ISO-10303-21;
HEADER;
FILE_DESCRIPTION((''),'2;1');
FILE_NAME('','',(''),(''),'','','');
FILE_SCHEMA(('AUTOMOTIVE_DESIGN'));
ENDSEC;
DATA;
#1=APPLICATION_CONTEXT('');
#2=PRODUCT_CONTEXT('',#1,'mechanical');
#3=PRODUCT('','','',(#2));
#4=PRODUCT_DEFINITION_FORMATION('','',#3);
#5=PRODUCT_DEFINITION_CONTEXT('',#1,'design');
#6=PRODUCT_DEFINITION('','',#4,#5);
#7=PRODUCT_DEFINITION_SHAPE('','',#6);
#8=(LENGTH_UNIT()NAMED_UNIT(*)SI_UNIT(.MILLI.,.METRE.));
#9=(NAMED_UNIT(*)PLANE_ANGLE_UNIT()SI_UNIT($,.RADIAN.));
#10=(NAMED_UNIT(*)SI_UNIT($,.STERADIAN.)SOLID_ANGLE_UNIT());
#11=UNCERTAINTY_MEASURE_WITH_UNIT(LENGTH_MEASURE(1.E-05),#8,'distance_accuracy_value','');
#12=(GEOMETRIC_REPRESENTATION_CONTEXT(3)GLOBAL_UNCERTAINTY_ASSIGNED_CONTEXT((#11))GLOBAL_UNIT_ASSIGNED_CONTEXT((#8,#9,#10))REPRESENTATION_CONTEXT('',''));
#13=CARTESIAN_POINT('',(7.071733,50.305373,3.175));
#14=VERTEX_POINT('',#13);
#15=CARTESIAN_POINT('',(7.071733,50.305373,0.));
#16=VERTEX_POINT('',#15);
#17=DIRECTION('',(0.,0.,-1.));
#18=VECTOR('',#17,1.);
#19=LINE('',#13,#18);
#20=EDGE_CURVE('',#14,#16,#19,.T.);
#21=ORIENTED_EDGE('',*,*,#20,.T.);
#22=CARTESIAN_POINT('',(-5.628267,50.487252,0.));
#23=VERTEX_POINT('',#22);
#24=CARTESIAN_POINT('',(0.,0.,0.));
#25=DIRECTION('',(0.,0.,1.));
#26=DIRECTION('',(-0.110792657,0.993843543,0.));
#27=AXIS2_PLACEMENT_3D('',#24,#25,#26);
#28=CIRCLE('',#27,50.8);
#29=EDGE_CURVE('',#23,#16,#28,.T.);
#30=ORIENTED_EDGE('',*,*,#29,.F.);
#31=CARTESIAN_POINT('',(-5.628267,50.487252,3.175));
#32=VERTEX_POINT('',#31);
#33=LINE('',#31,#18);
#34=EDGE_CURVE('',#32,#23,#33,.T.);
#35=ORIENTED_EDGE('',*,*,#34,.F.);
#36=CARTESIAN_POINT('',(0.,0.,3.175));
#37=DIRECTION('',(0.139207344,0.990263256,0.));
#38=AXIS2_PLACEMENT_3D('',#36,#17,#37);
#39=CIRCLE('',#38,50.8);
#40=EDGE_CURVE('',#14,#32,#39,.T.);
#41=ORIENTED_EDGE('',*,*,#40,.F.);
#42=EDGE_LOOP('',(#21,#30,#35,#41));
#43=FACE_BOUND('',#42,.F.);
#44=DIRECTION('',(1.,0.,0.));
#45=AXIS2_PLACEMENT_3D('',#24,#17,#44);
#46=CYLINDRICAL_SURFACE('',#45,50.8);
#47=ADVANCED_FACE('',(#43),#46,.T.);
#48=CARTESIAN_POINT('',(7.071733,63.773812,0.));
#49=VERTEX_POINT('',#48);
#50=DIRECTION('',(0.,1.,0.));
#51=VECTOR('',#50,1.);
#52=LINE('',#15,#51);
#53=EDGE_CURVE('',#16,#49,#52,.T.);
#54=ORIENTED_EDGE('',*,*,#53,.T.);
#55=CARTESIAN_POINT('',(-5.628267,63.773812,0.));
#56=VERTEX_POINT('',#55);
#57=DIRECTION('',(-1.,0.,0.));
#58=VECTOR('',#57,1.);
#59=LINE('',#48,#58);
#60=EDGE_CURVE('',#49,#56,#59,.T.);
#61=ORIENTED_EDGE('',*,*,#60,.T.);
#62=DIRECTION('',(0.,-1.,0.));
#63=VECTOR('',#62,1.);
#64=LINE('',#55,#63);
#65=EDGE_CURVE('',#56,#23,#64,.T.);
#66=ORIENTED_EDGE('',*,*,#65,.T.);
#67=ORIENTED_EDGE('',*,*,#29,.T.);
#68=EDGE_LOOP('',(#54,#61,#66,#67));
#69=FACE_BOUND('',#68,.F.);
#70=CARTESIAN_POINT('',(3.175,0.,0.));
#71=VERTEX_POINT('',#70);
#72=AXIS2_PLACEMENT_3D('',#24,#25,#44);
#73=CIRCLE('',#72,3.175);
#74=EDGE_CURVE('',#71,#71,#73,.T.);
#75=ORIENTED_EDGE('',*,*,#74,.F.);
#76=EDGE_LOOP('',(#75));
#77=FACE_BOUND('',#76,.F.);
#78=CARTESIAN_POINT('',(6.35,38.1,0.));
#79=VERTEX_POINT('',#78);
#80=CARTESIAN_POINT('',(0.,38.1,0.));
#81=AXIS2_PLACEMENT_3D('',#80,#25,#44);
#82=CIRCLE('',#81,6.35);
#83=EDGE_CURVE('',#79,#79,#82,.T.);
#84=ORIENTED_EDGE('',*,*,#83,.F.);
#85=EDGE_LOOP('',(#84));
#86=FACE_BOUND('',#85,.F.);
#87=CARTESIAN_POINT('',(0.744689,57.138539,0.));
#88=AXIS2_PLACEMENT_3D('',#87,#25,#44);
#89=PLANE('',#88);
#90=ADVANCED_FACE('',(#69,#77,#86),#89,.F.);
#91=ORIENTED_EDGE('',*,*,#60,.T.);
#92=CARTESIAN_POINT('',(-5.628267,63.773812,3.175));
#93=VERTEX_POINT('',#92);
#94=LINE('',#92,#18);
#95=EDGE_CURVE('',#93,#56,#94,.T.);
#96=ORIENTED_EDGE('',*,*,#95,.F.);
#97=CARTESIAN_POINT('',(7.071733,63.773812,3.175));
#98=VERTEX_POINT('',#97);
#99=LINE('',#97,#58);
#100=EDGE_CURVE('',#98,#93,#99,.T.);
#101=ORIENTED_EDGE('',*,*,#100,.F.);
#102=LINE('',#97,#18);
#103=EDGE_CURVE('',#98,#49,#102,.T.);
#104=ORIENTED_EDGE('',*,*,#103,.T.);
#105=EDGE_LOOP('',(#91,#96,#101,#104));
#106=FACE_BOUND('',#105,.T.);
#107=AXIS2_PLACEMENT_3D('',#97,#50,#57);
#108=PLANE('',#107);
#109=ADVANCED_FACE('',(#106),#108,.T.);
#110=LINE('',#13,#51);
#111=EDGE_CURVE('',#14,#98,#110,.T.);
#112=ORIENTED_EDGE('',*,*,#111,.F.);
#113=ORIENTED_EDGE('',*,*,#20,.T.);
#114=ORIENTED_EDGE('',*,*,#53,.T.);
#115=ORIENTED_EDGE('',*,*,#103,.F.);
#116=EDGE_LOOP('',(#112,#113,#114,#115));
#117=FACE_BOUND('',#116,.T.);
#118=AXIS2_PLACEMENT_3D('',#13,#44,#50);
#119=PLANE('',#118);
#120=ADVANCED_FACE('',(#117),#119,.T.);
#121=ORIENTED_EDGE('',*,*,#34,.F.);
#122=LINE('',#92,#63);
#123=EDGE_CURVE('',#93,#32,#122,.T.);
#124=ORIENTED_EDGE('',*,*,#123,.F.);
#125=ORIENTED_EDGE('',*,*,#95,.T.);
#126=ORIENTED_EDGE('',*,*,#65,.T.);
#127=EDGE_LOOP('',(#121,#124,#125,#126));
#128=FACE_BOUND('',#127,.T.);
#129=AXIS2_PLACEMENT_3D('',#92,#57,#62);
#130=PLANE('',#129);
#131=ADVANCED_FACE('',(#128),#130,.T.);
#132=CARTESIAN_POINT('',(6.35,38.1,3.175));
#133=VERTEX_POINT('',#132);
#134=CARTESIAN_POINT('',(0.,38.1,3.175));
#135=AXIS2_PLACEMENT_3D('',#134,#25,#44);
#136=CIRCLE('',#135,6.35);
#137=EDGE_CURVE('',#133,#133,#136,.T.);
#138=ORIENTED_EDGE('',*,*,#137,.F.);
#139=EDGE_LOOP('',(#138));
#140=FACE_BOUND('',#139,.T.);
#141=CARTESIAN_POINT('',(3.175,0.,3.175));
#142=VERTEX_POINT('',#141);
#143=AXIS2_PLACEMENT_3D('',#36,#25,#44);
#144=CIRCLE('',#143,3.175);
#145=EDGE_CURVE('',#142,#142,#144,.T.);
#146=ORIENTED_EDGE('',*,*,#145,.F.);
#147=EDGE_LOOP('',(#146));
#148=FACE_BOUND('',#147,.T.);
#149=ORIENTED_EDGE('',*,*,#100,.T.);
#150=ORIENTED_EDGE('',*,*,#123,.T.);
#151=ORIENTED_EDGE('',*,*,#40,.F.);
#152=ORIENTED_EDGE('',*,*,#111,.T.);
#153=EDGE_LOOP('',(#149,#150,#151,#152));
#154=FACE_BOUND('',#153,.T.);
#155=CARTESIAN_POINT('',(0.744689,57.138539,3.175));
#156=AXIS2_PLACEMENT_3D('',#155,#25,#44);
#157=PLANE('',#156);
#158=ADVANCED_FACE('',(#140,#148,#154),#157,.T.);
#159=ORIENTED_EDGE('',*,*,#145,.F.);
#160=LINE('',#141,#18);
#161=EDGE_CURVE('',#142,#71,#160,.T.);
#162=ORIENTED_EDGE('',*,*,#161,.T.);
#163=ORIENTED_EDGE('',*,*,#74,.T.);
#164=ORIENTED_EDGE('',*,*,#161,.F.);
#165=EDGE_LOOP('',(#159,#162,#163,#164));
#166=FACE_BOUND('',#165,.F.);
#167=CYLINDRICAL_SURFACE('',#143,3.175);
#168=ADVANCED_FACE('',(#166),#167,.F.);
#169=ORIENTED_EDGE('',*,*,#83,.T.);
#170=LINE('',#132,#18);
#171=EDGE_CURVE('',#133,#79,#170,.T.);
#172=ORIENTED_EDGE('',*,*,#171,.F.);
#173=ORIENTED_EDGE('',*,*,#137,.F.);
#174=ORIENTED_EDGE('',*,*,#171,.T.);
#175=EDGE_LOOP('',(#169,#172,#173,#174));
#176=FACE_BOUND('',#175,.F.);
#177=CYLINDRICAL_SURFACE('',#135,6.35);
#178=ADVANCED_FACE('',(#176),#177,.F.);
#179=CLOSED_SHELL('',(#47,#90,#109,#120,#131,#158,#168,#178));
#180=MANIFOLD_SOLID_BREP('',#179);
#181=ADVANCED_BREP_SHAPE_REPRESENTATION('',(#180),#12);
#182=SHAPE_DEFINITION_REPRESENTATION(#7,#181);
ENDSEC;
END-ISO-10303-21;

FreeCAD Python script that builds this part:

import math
import FreeCAD as App
import Part
import Sketcher
Q = App.Units.Quantity

doc = App.newDocument("Part")
params = doc.addObject("Spreadsheet::Sheet", "Params")
for row, (alias, value) in enumerate([
    ("sketch1_diameter", "4 in"),
    ("pad1_length", "0.125 in"),
    ("sketch2_diameter", "0.5 in"),
    ("pocket1_length", "0.125 in"),
    ("sketch3_diameter", "0.25 in"),
    ("pocket2_length", "1 in"),
    ("sketch4_width", "0.5 in"),
    ("pad2_length", "0.125 in"),
], start=1):
    params.set(f"A{row}", alias)
    params.set(f"B{row}", "=" + value)
    params.setAlias(f"B{row}", alias)

body = doc.addObject("PartDesign::Body", "Body")

sketch1 = doc.addObject("Sketcher::SketchObject", "Sketch")
body.addObject(sketch1)
sketch1.AttachmentSupport = (doc.XY_Plane, [""])
sketch1.MapMode = "FlatFace"
sketch1.addGeometry(Part.Circle(App.Vector(0, 0, 0), App.Vector(0, 0, 1), 51), False)
sketch1.addConstraint([
    Sketcher.Constraint("Coincident", 0, 3, -1, 1),
    Sketcher.Constraint("Diameter", 0, Q("4 in")),
])
sketch1.setExpression("Constraints[1]", "Params.sketch1_diameter")
pad1 = doc.addObject("PartDesign::Pad", "Pad")
body.addObject(pad1)
pad1.Profile = sketch1
pad1.setExpression("Length", "Params.pad1_length")

sketch2 = doc.addObject("Sketcher::SketchObject", "Sketch001")
body.addObject(sketch2)
sketch2.AttachmentSupport = (doc.XY_Plane, [""])
sketch2.MapMode = "FlatFace"
sketch2.AttachmentOffset = App.Placement(App.Vector(0, 0, 0.125 * 25.4), App.Rotation())
sketch2.addGeometry(Part.Circle(App.Vector(0, 38, 0), App.Vector(0, 0, 1), 6), False)
sketch2.addConstraint([
    Sketcher.Constraint("PointOnObject", 0, 3, -2),
    Sketcher.Constraint("Diameter", 0, Q("0.5 in")),
    Sketcher.Constraint("DistanceY", -1, 1, 0, 3, Q("1.5 in")),
])
sketch2.setExpression("Constraints[1]", "Params.sketch2_diameter")
pocket1 = doc.addObject("PartDesign::Pocket", "Pocket")
body.addObject(pocket1)
pocket1.Profile = sketch2
pocket1.setExpression("Length", "Params.pocket1_length")

sketch3 = doc.addObject("Sketcher::SketchObject", "Sketch002")
body.addObject(sketch3)
sketch3.AttachmentSupport = (doc.XY_Plane, [""])
sketch3.MapMode = "FlatFace"
sketch3.AttachmentOffset = App.Placement(App.Vector(0, 0, 0.125 * 25.4), App.Rotation())
sketch3.addGeometry(Part.Circle(App.Vector(0, 0, 0), App.Vector(0, 0, 1), 3.2), False)
sketch3.addConstraint([
    Sketcher.Constraint("Coincident", 0, 3, -1, 1),
    Sketcher.Constraint("Diameter", 0, Q("0.25 in")),
])
sketch3.setExpression("Constraints[1]", "Params.sketch3_diameter")
pocket2 = doc.addObject("PartDesign::Pocket", "Pocket001")
body.addObject(pocket2)
pocket2.Profile = sketch3
pocket2.setExpression("Length", "Params.pocket2_length")

sketch4 = doc.addObject("Sketcher::SketchObject", "Sketch003")
body.addObject(sketch4)
sketch4.AttachmentSupport = (doc.XY_Plane, [""])
sketch4.MapMode = "FlatFace"
sketch4.AttachmentOffset = App.Placement(App.Vector(0, 0, 0.125 * 25.4), App.Rotation())
sketch4.addGeometry([
    Part.LineSegment(App.Vector(-6, 64, 0), App.Vector(-6, 50, 0)),
    Part.ArcOfCircle(Part.Circle(App.Vector(0, 0, 0), App.Vector(0, 0, 1), 51), math.radians(82), math.radians(96.36)),
    Part.LineSegment(App.Vector(7, 50, 0), App.Vector(7, 64, 0)),
    Part.LineSegment(App.Vector(7, 64, 0), App.Vector(-6, 64, 0)),
], False)
sketch4.addConstraint([
    Sketcher.Constraint("Coincident", 0, 2, 1, 2),
    Sketcher.Constraint("Coincident", 1, 1, 2, 1),
    Sketcher.Constraint("Coincident", 2, 2, 3, 1),
    Sketcher.Constraint("Coincident", 3, 2, 0, 1),
    Sketcher.Constraint("Vertical", 0),
    Sketcher.Constraint("Vertical", 2),
    Sketcher.Constraint("Horizontal", 3),
    Sketcher.Constraint("DistanceX", 3, 2, 3, 1, Q("0.5 in")),
    Sketcher.Constraint("Radius", 1, Q("50.800025 mm")),
    Sketcher.Constraint("DistanceY", 0, 2, 0, 1, Q("13.28656 mm")),
    Sketcher.Constraint("DistanceY", 2, 1, 2, 2, Q("13.468439 mm")),
    Sketcher.Constraint("DistanceY", -1, 1, 0, 2, Q("50.487252 mm")),
    Sketcher.Constraint("DistanceX", 0, 2, -1, 1, Q("5.628267 mm")),
])
sketch4.setExpression("Constraints[7]", "Params.sketch4_width")
pad2 = doc.addObject("PartDesign::Pad", "Pad001")
body.addObject(pad2)
pad2.Profile = sketch4
pad2.setExpression("Length", "Params.pad2_length")
pad2.Reversed = True

doc.recompute()
